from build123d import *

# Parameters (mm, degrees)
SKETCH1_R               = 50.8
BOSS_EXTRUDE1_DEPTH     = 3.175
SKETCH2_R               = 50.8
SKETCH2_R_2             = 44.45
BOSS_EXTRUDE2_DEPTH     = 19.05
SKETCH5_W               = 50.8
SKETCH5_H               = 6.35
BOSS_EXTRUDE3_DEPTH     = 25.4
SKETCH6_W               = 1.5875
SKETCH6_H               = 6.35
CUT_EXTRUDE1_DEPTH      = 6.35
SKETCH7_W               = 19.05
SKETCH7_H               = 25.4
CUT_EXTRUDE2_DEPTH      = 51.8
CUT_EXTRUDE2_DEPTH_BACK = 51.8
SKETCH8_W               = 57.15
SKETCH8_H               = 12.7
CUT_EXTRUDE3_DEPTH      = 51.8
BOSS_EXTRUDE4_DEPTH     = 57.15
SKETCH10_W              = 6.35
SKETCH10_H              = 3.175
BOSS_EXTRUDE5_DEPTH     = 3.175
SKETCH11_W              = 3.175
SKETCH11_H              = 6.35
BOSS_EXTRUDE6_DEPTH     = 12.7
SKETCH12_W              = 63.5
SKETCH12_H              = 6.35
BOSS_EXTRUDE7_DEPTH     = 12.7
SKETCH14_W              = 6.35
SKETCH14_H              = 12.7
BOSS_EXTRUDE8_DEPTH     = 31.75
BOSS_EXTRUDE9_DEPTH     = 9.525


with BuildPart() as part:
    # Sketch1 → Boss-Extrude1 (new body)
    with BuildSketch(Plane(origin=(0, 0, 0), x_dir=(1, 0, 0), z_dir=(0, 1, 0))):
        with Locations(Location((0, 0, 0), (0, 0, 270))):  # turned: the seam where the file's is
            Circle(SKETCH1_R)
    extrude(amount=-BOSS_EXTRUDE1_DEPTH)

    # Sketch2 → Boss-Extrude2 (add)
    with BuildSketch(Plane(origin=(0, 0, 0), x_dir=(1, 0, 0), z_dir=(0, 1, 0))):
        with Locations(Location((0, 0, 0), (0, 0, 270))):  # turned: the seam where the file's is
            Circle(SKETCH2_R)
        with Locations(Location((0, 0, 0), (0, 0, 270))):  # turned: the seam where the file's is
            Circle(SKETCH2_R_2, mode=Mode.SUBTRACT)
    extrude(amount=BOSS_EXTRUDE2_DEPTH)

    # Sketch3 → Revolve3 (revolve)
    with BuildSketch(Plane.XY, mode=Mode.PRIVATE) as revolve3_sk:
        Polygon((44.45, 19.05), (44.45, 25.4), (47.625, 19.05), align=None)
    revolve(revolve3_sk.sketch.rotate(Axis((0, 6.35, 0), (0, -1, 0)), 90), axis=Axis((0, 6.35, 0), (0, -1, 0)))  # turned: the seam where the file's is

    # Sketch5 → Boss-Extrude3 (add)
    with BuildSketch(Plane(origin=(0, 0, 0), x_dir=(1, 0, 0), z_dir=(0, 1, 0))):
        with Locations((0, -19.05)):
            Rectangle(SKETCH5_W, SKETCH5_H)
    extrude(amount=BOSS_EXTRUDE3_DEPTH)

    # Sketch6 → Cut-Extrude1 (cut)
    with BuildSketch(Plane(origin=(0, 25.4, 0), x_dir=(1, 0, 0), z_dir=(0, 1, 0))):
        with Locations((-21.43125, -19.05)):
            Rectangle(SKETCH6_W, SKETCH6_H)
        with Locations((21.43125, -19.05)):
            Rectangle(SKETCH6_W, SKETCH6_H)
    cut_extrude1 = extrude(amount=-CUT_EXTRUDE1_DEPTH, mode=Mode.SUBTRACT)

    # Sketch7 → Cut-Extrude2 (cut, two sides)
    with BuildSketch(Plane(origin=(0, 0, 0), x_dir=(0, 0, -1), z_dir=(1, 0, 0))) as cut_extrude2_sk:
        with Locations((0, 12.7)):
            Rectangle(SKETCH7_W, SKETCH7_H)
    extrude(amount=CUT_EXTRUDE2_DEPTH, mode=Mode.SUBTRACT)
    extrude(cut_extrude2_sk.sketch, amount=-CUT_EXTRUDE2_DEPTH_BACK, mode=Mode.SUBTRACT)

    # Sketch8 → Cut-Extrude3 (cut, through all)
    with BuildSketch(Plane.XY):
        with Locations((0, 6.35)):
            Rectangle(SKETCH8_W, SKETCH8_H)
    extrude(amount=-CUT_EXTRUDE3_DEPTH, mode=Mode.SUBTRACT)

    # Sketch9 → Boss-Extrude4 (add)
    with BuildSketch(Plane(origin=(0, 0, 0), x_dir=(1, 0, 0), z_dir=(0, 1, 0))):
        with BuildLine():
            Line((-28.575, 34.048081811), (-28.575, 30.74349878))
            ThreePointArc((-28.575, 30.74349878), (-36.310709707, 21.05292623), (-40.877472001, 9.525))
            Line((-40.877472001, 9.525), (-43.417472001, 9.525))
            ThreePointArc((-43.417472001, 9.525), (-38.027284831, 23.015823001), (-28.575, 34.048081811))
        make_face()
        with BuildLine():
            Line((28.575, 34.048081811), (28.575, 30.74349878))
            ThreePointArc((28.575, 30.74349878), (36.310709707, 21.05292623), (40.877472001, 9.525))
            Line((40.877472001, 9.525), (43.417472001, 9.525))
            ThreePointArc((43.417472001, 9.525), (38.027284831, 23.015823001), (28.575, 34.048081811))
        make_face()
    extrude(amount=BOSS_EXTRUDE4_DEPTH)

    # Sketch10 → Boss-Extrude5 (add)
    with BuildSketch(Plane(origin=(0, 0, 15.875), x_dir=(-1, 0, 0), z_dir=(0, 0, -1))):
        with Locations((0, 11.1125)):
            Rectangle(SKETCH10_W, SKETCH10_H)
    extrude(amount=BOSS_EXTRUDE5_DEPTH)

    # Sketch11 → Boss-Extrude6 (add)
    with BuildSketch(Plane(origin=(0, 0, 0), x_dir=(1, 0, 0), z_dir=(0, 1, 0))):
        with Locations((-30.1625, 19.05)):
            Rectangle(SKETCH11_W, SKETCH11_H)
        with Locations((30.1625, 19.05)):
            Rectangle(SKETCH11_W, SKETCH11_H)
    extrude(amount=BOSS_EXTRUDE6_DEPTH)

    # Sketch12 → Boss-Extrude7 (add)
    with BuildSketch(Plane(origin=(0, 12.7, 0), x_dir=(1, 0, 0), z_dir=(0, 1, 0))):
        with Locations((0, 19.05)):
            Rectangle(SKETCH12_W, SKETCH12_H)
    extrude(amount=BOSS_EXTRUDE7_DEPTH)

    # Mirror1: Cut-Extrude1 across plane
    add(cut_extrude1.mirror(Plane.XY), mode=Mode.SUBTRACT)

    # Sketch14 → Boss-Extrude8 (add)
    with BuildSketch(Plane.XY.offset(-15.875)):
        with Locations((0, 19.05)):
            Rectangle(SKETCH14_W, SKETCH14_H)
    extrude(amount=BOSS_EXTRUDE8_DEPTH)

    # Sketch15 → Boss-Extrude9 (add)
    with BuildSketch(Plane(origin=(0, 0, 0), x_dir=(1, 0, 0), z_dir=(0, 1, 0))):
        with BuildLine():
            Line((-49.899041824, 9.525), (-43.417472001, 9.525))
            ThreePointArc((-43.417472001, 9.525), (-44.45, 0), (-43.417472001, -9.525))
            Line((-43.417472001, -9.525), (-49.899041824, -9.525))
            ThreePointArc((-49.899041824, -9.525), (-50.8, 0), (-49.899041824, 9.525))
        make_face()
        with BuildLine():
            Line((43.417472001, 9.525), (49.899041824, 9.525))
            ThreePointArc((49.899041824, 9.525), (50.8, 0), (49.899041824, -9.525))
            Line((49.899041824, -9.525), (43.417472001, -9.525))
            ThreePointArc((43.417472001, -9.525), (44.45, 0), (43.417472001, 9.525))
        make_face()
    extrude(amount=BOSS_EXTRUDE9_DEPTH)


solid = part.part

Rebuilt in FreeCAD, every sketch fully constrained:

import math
import FreeCAD as App
import Part
import Sketcher
Q = App.Units.Quantity


def add_polygon(sketch, points):
    """Adds a closed chain of lines whose ends are joined by coincident constraints."""
    first, n = sketch.GeometryCount, len(points)
    for a, b in zip(points, points[1:] + points[:1]):
        sketch.addGeometry(Part.LineSegment(App.Vector(*a, 0), App.Vector(*b, 0)), False)
    for i in range(n):
        sketch.addConstraint(Sketcher.Constraint("Coincident", first + i, 2, first + (i + 1) % n, 1))

doc = App.newDocument("Part")
body = doc.addObject("PartDesign::Body", "Body")

sketch1 = body.newObject("Sketcher::SketchObject", "Sketch")
sketch1.AttachmentSupport = (doc.getObject("XZ_Plane"), [""])
sketch1.MapMode = "FlatFace"
sketch1.addGeometry(Part.Circle(App.Vector(0, 0, 0), App.Vector(0, 0, 1), 51), False)
sketch1.addConstraint([
    Sketcher.Constraint("Coincident", 0, 3, -1, 1),
    Sketcher.Constraint("Diameter", 0, Q("4 in")),
])
pad1 = body.newObject("PartDesign::Pad", "Pad")
pad1.Profile = sketch1
pad1.Length = Q("0.125 in")

sketch2 = body.newObject("Sketcher::SketchObject", "Sketch001")
sketch2.AttachmentSupport = (doc.getObject("XZ_Plane"), [""])
sketch2.MapMode = "FlatFace"
sketch2.addGeometry([
    Part.Circle(App.Vector(0, 0, 0), App.Vector(0, 0, 1), 51),
    Part.Circle(App.Vector(0, 0, 0), App.Vector(0, 0, 1), 44),
], False)
sketch2.addConstraint([
    Sketcher.Constraint("Coincident", 0, 3, -1, 1),
    Sketcher.Constraint("Coincident", 1, 3, -1, 1),
    Sketcher.Constraint("Diameter", 0, Q("4 in")),
    Sketcher.Constraint("Diameter", 1, Q("3.5 in")),
])
pad2 = body.newObject("PartDesign::Pad", "Pad001")
pad2.Profile = sketch2
pad2.Length = Q("0.75 in")
pad2.Reversed = True

sketch3 = body.newObject("Sketcher::SketchObject", "Sketch002")
sketch3.AttachmentSupport = (doc.getObject("XY_Plane"), [""])
sketch3.MapMode = "FlatFace"
add_polygon(sketch3, [(44.5, 25.4), (44.5, 19.1), (47.6, 19.1)])
sketch3.addConstraint([
    Sketcher.Constraint("Vertical", 0),
    Sketcher.Constraint("Horizontal", 1),
    Sketcher.Constraint("DistanceY", -1, 1, 2, 2, Q("1 in")),
    Sketcher.Constraint("DistanceY", 0, 2, 0, 1, Q("0.25 in")),
    Sketcher.Constraint("DistanceX", 1, 1, 1, 2, Q("0.125 in")),
    Sketcher.Constraint("DistanceX", -1, 1, 0, 2, Q("1.75 in")),
])
revolution = body.newObject("PartDesign::Revolution", "Revolution")
revolution.Profile = sketch3
revolution.ReferenceAxis = (sketch3, ["V_Axis"])
revolution.Angle = 360

sketch4 = body.newObject("Sketcher::SketchObject", "Sketch003")
sketch4.AttachmentSupport = (doc.getObject("XZ_Plane"), [""])
sketch4.MapMode = "FlatFace"
add_polygon(sketch4, [(-25, 16), (-25, 22), (25, 22), (25, 16)])
sketch4.addConstraint([
    Sketcher.Constraint("Vertical", 0),
    Sketcher.Constraint("Horizontal", 1),
    Sketcher.Constraint("Vertical", 2),
    Sketcher.Constraint("Horizontal", 3),
    Sketcher.Constraint("DistanceX", 1, 1, 1, 2, Q("2 in")),
    Sketcher.Constraint("DistanceX", 0, 2, -1, 1, Q("1 in")),
    Sketcher.Constraint("DistanceY", 0, 1, 0, 2, Q("0.25 in")),
    Sketcher.Constraint("DistanceY", -1, 1, 0, 2, Q("0.875 in")),
])
pad3 = body.newObject("PartDesign::Pad", "Pad002")
pad3.Profile = sketch4
pad3.Length = Q("1 in")
pad3.Reversed = True

sketch5 = body.newObject("Sketcher::SketchObject", "Sketch004")
sketch5.AttachmentSupport = (doc.getObject("XZ_Plane"), [""])
sketch5.MapMode = "FlatFace"
sketch5.AttachmentOffset = App.Placement(App.Vector(0, 0, -1 * 25.4), App.Rotation())
add_polygon(sketch5, [(-22.2, 15.9), (-22.2, 22.2), (-20.6, 22.2), (-20.6, 15.9)])
add_polygon(sketch5, [(20.6, 15.9), (20.6, 22.2), (22.2, 22.2), (22.2, 15.9)])
sketch5.addConstraint([
    Sketcher.Constraint("Vertical", 0),
    Sketcher.Constraint("Horizontal", 1),
    Sketcher.Constraint("Vertical", 2),
    Sketcher.Constraint("Horizontal", 3),
    Sketcher.Constraint("Vertical", 4),
    Sketcher.Constraint("Horizontal", 5),
    Sketcher.Constraint("Vertical", 6),
    Sketcher.Constraint("Horizontal", 7),
    Sketcher.Constraint("Symmetric", 1, 2, 4, 2, -2),
    Sketcher.Constraint("Symmetric", 3, 2, 6, 2, -2),
    Sketcher.Constraint("DistanceY", 0, 1, 0, 2, Q("0.25 in")),
    Sketcher.Constraint("DistanceX", 1, 1, 1, 2, Q("0.0625 in")),
    Sketcher.Constraint("DistanceX", 0, 2, 5, 2, Q("1.75 in")),
    Sketcher.Constraint("DistanceY", -1, 1, 0, 2, Q("0.875 in")),
])
pocket1 = body.newObject("PartDesign::Pocket", "Pocket")
pocket1.Profile = sketch5
pocket1.Length = Q("0.25 in")
pocket1.Reversed = True

sketch6 = body.newObject("Sketcher::SketchObject", "Sketch005")
sketch6.AttachmentSupport = (doc.getObject("YZ_Plane"), [""])
sketch6.MapMode = "FlatFace"
add_polygon(sketch6, [(25, 10), (0, 10), (0, -10), (25, -10)])
sketch6.addConstraint([
    Sketcher.Constraint("Horizontal", 0),
    Sketcher.Constraint("Vertical", 1),
    Sketcher.Constraint("Horizontal", 2),
    Sketcher.Constraint("Vertical", 3),
    Sketcher.Constraint("Symmetric", 0, 2, 1, 2, -1, 1),
    Sketcher.Constraint("DistanceX", 0, 2, 0, 1, Q("1 in")),
    Sketcher.Constraint("DistanceY", 1, 2, 1, 1, Q("0.75 in")),
])
pocket2 = body.newObject("PartDesign::Pocket", "Pocket001")
pocket2.Profile = sketch6
pocket2.Type = "ThroughAll"
pocket2.Midplane = True

sketch7 = body.newObject("Sketcher::SketchObject", "Sketch006")
sketch7.AttachmentSupport = (doc.getObject("XY_Plane"), [""])
sketch7.MapMode = "FlatFace"
add_polygon(sketch7, [(-29, 13), (-29, 0), (29, 0), (29, 13)])
sketch7.addConstraint([
    Sketcher.Constraint("Vertical", 0),
    Sketcher.Constraint("Horizontal", 1),
    Sketcher.Constraint("Vertical", 2),
    Sketcher.Constraint("Horizontal", 3),
    Sketcher.Constraint("Symmetric", 0, 2, 1, 2, -1, 1),
    Sketcher.Constraint("DistanceY", 0, 2, 0, 1, Q("0.5 in")),
    Sketcher.Constraint("DistanceX", 1, 1, 1, 2, Q("2.25 in")),
])
pocket3 = body.newObject("PartDesign::Pocket", "Pocket002")
pocket3.Profile = sketch7
pocket3.Type = "ThroughAll"

sketch8 = body.newObject("Sketcher::SketchObject", "Sketch007")
sketch8.AttachmentSupport = (doc.getObject("XZ_Plane"), [""])
sketch8.MapMode = "FlatFace"
sketch8.addGeometry([
    Part.LineSegment(App.Vector(-28.6, -30.7, 0), App.Vector(-28.6, -34, 0)),
    Part.ArcOfCircle(Part.Circle(App.Vector(0, 0, 0), App.Vector(0, 0, 1), 44.4), math.radians(-168), math.radians(-130)),
    Part.LineSegment(App.Vector(-43.4, -9.5, 0), App.Vector(-40.9, -9.5, 0)),
    Part.ArcOfCircle(Part.Circle(App.Vector(0, 0, 0), App.Vector(0, 0, 1), 42), math.radians(-167), math.radians(-133)),
    Part.LineSegment(App.Vector(28.6, -34, 0), App.Vector(28.6, -30.7, 0)),
    Part.ArcOfCircle(Part.Circle(App.Vector(0, 0, 0), App.Vector(0, 0, 1), 42), math.radians(-47), math.radians(-13)),
    Part.LineSegment(App.Vector(40.9, -9.5, 0), App.Vector(43.4, -9.5, 0)),
    Part.ArcOfCircle(Part.Circle(App.Vector(0, 0, 0), App.Vector(0, 0, 1), 44.4), math.radians(-50), math.radians(-12)),
], False)
sketch8.addConstraint([
    Sketcher.Constraint("Coincident", 0, 2, 1, 2),
    Sketcher.Constraint("Coincident", 1, 1, 2, 1),
    Sketcher.Constraint("Coincident", 2, 2, 3, 1),
    Sketcher.Constraint("Coincident", 3, 2, 0, 1),
    Sketcher.Constraint("Coincident", 4, 2, 5, 1),
    Sketcher.Constraint("Coincident", 5, 2, 6, 1),
    Sketcher.Constraint("Coincident", 6, 2, 7, 2),
    Sketcher.Constraint("Coincident", 7, 1, 4, 1),
    Sketcher.Constraint("Vertical", 0),
    Sketcher.Constraint("Horizontal", 2),
    Sketcher.Constraint("Vertical", 4),
    Sketcher.Constraint("Horizontal", 6),
    Sketcher.Constraint("Coincident", 1, 3, -1, 1),
    Sketcher.Constraint("Coincident", 3, 3, -1, 1),
    Sketcher.Constraint("Coincident", 5, 3, -1, 1),
    Sketcher.Constraint("Coincident", 7, 3, -1, 1),
    Sketcher.Constraint("Equal", 3, 5),
    Sketcher.Constraint("Equal", 1, 7),
    Sketcher.Constraint("Horizontal", 3, 2, 4, 2),
    Sketcher.Constraint("Horizontal", 2, 2, 5, 2),
    Sketcher.Constraint("Radius", 1, Q("1.75 in")),
    Sketcher.Constraint("DistanceX", 2, 1, 2, 2, Q("0.1 in")),
    Sketcher.Constraint("DistanceX", 3, 2, 4, 2, Q("2.25 in")),
    Sketcher.Constraint("DistanceY", 1, 1, -1, 1, Q("0.375 in")),
])
pad4 = body.newObject("PartDesign::Pad", "Pad003")
pad4.Profile = sketch8
pad4.Length = Q("2.25 in")
pad4.Reversed = True

sketch9 = body.newObject("Sketcher::SketchObject", "Sketch008")
sketch9.AttachmentSupport = (doc.getObject("XY_Plane"), [""])
sketch9.MapMode = "FlatFace"
sketch9.AttachmentOffset = App.Placement(App.Vector(0, 0, 0.625 * 25.4), App.Rotation())
add_polygon(sketch9, [(3.2, 12.7), (3.2, 9.5), (-3.2, 9.5), (-3.2, 12.7)])
sketch9.addConstraint([
    Sketcher.Constraint("Vertical", 0),
    Sketcher.Constraint("Horizontal", 1),
    Sketcher.Constraint("Vertical", 2),
    Sketcher.Constraint("Horizontal", 3),
    Sketcher.Constraint("DistanceX", 1, 2, 1, 1, Q("0.25 in")),
    Sketcher.Constraint("DistanceY", -1, 1, 2, 2, Q("0.5 in")),
    Sketcher.Constraint("DistanceY", 0, 2, 0, 1, Q("0.125 in")),
    Sketcher.Constraint("DistanceX", -1, 1, 0, 2, Q("0.125 in")),
])
pad5 = body.newObject("PartDesign::Pad", "Pad004")
pad5.Profile = sketch9
pad5.Length = Q("0.125 in")
pad5.Reversed = True

sketch10 = body.newObject("Sketcher::SketchObject", "Sketch009")
sketch10.AttachmentSupport = (doc.getObject("XZ_Plane"), [""])
sketch10.MapMode = "FlatFace"
add_polygon(sketch10, [(-31.8, -22.2), (-31.8, -15.9), (-28.6, -15.9), (-28.6, -22.2)])
add_polygon(sketch10, [(28.6, -22.2), (28.6, -15.9), (31.8, -15.9), (31.8, -22.2)])
sketch10.addConstraint([
    Sketcher.Constraint("Vertical", 0),
    Sketcher.Constraint("Horizontal", 1),
    Sketcher.Constraint("Vertical", 2),
    Sketcher.Constraint("Horizontal", 3),
    Sketcher.Constraint("Vertical", 4),
    Sketcher.Constraint("Horizontal", 5),
    Sketcher.Constraint("Vertical", 6),
    Sketcher.Constraint("Horizontal", 7),
    Sketcher.Constraint("Symmetric", 1, 2, 4, 2, -2),
    Sketcher.Constraint("Symmetric", 3, 2, 6, 2, -2),
    Sketcher.Constraint("DistanceY", 0, 1, 0, 2, Q("0.25 in")),
    Sketcher.Constraint("DistanceX", 0, 2, 5, 2, Q("2.5 in")),
    Sketcher.Constraint("DistanceX", 1, 1, 1, 2, Q("0.125 in")),
    Sketcher.Constraint("DistanceY", 0, 2, -1, 1, Q("0.625 in")),
])
pad6 = body.newObject("PartDesign::Pad", "Pad005")
pad6.Profile = sketch10
pad6.Length = Q("0.5 in")
pad6.Reversed = True

sketch11 = body.newObject("Sketcher::SketchObject", "Sketch010")
sketch11.AttachmentSupport = (doc.getObject("XZ_Plane"), [""])
sketch11.MapMode = "FlatFace"
sketch11.AttachmentOffset = App.Placement(App.Vector(0, 0, -0.5 * 25.4), App.Rotation())
add_polygon(sketch11, [(-32, -22), (-32, -16), (32, -16), (32, -22)])
sketch11.addConstraint([
    Sketcher.Constraint("Vertical", 0),
    Sketcher.Constraint("Horizontal", 1),
    Sketcher.Constraint("Vertical", 2),
    Sketcher.Constraint("Horizontal", 3),
    Sketcher.Constraint("DistanceX", 1, 1, 1, 2, Q("2.5 in")),
    Sketcher.Constraint("DistanceY", 0, 1, 0, 2, Q("0.25 in")),
    Sketcher.Constraint("DistanceX", 0, 2, -1, 1, Q("1.25 in")),
    Sketcher.Constraint("DistanceY", 0, 2, -1, 1, Q("0.625 in")),
])
pad7 = body.newObject("PartDesign::Pad", "Pad006")
pad7.Profile = sketch11
pad7.Length = Q("0.5 in")
pad7.Reversed = True
doc.recompute()

mirrored = body.newObject("PartDesign::Mirrored", "Mirrored")
mirrored.Originals = [pocket1]
mirrored.MirrorPlane = (doc.getObject("XY_Plane"), [""])
body.Tip = mirrored

sketch12 = body.newObject("Sketcher::SketchObject", "Sketch011")
sketch12.AttachmentSupport = (doc.getObject("XY_Plane"), [""])
sketch12.MapMode = "FlatFace"
sketch12.AttachmentOffset = App.Placement(App.Vector(0, 0, -0.625 * 25.4), App.Rotation())
add_polygon(sketch12, [(-3, 25), (-3, 13), (3, 13), (3, 25)])
sketch12.addConstraint([
    Sketcher.Constraint("Vertical", 0),
    Sketcher.Constraint("Horizontal", 1),
    Sketcher.Constraint("Vertical", 2),
    Sketcher.Constraint("Horizontal", 3),
    Sketcher.Constraint("DistanceY", 0, 2, 0, 1, Q("0.5 in")),
    Sketcher.Constraint("DistanceY", -1, 1, 2, 2, Q("1 in")),
    Sketcher.Constraint("DistanceX", 1, 1, 1, 2, Q("0.25 in")),
    Sketcher.Constraint("DistanceX", 0, 2, -1, 1, Q("0.125 in")),
])
pad8 = body.newObject("PartDesign::Pad", "Pad007")
pad8.Profile = sketch12
pad8.Length = Q("1.25 in")

sketch13 = body.newObject("Sketcher::SketchObject", "Sketch012")
sketch13.AttachmentSupport = (doc.getObject("XZ_Plane"), [""])
sketch13.MapMode = "FlatFace"
sketch13.addGeometry([
    Part.LineSegment(App.Vector(-43, -10, 0), App.Vector(-50, -10, 0)),
    Part.ArcOfCircle(Part.Circle(App.Vector(0, 0, 0), App.Vector(0, 0, 1), 51), math.radians(169), math.radians(191)),
    Part.LineSegment(App.Vector(-50, 10, 0), App.Vector(-43, 10, 0)),
    Part.ArcOfCircle(Part.Circle(App.Vector(0, 0, 0), App.Vector(0, 0, 1), 44), math.radians(168), math.radians(192)),
    Part.LineSegment(App.Vector(50, -10, 0), App.Vector(43, -10, 0)),
    Part.ArcOfCircle(Part.Circle(App.Vector(0, 0, 0), App.Vector(0, 0, 1), 44), math.radians(-12), math.radians(12)),
    Part.LineSegment(App.Vector(43, 10, 0), App.Vector(50, 10, 0)),
    Part.ArcOfCircle(Part.Circle(App.Vector(0, 0, 0), App.Vector(0, 0, 1), 51), math.radians(-11), math.radians(11)),
], False)
sketch13.addConstraint([
    Sketcher.Constraint("Coincident", 0, 2, 1, 2),
    Sketcher.Constraint("Coincident", 1, 1, 2, 1),
    Sketcher.Constraint("Coincident", 2, 2, 3, 1),
    Sketcher.Constraint("Coincident", 3, 2, 0, 1),
    Sketcher.Constraint("Coincident", 4, 2, 5, 1),
    Sketcher.Constraint("Coincident", 5, 2, 6, 1),
    Sketcher.Constraint("Coincident", 6, 2, 7, 2),
    Sketcher.Constraint("Coincident", 7, 1, 4, 1),
    Sketcher.Constraint("Horizontal", 0),
    Sketcher.Constraint("Horizontal", 2),
    Sketcher.Constraint("Horizontal", 4),
    Sketcher.Constraint("Horizontal", 6),
    Sketcher.Constraint("Coincident", 1, 3, -1, 1),
    Sketcher.Constraint("Coincident", 3, 3, -1, 1),
    Sketcher.Constraint("Coincident", 5, 3, -1, 1),
    Sketcher.Constraint("Coincident", 7, 3, -1, 1),
    Sketcher.Constraint("Equal", 3, 5),
    Sketcher.Constraint("Equal", 1, 7),
    Sketcher.Constraint("Horizontal", 3, 2, 4, 2),
    Sketcher.Constraint("Horizontal", 2, 2, 5, 2),
    Sketcher.Constraint("Vertical", 0, 2, 1, 1),
    Sketcher.Constraint("Radius", 1, Q("2 in")),
    Sketcher.Constraint("Radius", 3, Q("1.75 in")),
    Sketcher.Constraint("DistanceY", 0, 2, 1, 1, Q("0.75 in")),
])
pad9 = body.newObject("PartDesign::Pad", "Pad008")
pad9.Profile = sketch13
pad9.Length = Q("0.375 in")
pad9.Reversed = True

doc.recompute()
